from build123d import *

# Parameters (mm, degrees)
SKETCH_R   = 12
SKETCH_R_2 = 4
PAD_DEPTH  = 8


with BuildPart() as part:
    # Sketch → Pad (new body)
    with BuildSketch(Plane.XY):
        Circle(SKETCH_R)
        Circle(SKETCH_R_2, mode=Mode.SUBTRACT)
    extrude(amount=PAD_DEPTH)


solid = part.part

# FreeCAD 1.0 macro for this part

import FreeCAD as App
import Part
import Sketcher
from FreeCAD import Vector
Q = App.Units.Quantity

doc = App.newDocument("Part")
body = doc.addObject("PartDesign::Body", "Body")

# Sketch on XY plane
sketch1 = body.newObject("Sketcher::SketchObject", "Sketch")
sketch1.AttachmentSupport = (doc.getObject("XY_Plane"), [""])
sketch1.MapMode = "FlatFace"
sketch1.addGeometry([
    Part.Circle(Vector(0, 0, 0), Vector(0, 0, 1), 12),
    Part.Circle(Vector(0, 0, 0), Vector(0, 0, 1), 4),
], False)
sketch1.addConstraint([
    Sketcher.Constraint("Coincident", 0, 3, -1, 1),
    Sketcher.Constraint("Coincident", 1, 3, -1, 1),
    Sketcher.Constraint("Diameter", 0, Q("24 mm")),
    Sketcher.Constraint("Diameter", 1, Q("8 mm")),
])
pad1 = body.newObject("PartDesign::Pad", "Pad")
pad1.Profile = sketch1
pad1.Length = 8

doc.recompute()
